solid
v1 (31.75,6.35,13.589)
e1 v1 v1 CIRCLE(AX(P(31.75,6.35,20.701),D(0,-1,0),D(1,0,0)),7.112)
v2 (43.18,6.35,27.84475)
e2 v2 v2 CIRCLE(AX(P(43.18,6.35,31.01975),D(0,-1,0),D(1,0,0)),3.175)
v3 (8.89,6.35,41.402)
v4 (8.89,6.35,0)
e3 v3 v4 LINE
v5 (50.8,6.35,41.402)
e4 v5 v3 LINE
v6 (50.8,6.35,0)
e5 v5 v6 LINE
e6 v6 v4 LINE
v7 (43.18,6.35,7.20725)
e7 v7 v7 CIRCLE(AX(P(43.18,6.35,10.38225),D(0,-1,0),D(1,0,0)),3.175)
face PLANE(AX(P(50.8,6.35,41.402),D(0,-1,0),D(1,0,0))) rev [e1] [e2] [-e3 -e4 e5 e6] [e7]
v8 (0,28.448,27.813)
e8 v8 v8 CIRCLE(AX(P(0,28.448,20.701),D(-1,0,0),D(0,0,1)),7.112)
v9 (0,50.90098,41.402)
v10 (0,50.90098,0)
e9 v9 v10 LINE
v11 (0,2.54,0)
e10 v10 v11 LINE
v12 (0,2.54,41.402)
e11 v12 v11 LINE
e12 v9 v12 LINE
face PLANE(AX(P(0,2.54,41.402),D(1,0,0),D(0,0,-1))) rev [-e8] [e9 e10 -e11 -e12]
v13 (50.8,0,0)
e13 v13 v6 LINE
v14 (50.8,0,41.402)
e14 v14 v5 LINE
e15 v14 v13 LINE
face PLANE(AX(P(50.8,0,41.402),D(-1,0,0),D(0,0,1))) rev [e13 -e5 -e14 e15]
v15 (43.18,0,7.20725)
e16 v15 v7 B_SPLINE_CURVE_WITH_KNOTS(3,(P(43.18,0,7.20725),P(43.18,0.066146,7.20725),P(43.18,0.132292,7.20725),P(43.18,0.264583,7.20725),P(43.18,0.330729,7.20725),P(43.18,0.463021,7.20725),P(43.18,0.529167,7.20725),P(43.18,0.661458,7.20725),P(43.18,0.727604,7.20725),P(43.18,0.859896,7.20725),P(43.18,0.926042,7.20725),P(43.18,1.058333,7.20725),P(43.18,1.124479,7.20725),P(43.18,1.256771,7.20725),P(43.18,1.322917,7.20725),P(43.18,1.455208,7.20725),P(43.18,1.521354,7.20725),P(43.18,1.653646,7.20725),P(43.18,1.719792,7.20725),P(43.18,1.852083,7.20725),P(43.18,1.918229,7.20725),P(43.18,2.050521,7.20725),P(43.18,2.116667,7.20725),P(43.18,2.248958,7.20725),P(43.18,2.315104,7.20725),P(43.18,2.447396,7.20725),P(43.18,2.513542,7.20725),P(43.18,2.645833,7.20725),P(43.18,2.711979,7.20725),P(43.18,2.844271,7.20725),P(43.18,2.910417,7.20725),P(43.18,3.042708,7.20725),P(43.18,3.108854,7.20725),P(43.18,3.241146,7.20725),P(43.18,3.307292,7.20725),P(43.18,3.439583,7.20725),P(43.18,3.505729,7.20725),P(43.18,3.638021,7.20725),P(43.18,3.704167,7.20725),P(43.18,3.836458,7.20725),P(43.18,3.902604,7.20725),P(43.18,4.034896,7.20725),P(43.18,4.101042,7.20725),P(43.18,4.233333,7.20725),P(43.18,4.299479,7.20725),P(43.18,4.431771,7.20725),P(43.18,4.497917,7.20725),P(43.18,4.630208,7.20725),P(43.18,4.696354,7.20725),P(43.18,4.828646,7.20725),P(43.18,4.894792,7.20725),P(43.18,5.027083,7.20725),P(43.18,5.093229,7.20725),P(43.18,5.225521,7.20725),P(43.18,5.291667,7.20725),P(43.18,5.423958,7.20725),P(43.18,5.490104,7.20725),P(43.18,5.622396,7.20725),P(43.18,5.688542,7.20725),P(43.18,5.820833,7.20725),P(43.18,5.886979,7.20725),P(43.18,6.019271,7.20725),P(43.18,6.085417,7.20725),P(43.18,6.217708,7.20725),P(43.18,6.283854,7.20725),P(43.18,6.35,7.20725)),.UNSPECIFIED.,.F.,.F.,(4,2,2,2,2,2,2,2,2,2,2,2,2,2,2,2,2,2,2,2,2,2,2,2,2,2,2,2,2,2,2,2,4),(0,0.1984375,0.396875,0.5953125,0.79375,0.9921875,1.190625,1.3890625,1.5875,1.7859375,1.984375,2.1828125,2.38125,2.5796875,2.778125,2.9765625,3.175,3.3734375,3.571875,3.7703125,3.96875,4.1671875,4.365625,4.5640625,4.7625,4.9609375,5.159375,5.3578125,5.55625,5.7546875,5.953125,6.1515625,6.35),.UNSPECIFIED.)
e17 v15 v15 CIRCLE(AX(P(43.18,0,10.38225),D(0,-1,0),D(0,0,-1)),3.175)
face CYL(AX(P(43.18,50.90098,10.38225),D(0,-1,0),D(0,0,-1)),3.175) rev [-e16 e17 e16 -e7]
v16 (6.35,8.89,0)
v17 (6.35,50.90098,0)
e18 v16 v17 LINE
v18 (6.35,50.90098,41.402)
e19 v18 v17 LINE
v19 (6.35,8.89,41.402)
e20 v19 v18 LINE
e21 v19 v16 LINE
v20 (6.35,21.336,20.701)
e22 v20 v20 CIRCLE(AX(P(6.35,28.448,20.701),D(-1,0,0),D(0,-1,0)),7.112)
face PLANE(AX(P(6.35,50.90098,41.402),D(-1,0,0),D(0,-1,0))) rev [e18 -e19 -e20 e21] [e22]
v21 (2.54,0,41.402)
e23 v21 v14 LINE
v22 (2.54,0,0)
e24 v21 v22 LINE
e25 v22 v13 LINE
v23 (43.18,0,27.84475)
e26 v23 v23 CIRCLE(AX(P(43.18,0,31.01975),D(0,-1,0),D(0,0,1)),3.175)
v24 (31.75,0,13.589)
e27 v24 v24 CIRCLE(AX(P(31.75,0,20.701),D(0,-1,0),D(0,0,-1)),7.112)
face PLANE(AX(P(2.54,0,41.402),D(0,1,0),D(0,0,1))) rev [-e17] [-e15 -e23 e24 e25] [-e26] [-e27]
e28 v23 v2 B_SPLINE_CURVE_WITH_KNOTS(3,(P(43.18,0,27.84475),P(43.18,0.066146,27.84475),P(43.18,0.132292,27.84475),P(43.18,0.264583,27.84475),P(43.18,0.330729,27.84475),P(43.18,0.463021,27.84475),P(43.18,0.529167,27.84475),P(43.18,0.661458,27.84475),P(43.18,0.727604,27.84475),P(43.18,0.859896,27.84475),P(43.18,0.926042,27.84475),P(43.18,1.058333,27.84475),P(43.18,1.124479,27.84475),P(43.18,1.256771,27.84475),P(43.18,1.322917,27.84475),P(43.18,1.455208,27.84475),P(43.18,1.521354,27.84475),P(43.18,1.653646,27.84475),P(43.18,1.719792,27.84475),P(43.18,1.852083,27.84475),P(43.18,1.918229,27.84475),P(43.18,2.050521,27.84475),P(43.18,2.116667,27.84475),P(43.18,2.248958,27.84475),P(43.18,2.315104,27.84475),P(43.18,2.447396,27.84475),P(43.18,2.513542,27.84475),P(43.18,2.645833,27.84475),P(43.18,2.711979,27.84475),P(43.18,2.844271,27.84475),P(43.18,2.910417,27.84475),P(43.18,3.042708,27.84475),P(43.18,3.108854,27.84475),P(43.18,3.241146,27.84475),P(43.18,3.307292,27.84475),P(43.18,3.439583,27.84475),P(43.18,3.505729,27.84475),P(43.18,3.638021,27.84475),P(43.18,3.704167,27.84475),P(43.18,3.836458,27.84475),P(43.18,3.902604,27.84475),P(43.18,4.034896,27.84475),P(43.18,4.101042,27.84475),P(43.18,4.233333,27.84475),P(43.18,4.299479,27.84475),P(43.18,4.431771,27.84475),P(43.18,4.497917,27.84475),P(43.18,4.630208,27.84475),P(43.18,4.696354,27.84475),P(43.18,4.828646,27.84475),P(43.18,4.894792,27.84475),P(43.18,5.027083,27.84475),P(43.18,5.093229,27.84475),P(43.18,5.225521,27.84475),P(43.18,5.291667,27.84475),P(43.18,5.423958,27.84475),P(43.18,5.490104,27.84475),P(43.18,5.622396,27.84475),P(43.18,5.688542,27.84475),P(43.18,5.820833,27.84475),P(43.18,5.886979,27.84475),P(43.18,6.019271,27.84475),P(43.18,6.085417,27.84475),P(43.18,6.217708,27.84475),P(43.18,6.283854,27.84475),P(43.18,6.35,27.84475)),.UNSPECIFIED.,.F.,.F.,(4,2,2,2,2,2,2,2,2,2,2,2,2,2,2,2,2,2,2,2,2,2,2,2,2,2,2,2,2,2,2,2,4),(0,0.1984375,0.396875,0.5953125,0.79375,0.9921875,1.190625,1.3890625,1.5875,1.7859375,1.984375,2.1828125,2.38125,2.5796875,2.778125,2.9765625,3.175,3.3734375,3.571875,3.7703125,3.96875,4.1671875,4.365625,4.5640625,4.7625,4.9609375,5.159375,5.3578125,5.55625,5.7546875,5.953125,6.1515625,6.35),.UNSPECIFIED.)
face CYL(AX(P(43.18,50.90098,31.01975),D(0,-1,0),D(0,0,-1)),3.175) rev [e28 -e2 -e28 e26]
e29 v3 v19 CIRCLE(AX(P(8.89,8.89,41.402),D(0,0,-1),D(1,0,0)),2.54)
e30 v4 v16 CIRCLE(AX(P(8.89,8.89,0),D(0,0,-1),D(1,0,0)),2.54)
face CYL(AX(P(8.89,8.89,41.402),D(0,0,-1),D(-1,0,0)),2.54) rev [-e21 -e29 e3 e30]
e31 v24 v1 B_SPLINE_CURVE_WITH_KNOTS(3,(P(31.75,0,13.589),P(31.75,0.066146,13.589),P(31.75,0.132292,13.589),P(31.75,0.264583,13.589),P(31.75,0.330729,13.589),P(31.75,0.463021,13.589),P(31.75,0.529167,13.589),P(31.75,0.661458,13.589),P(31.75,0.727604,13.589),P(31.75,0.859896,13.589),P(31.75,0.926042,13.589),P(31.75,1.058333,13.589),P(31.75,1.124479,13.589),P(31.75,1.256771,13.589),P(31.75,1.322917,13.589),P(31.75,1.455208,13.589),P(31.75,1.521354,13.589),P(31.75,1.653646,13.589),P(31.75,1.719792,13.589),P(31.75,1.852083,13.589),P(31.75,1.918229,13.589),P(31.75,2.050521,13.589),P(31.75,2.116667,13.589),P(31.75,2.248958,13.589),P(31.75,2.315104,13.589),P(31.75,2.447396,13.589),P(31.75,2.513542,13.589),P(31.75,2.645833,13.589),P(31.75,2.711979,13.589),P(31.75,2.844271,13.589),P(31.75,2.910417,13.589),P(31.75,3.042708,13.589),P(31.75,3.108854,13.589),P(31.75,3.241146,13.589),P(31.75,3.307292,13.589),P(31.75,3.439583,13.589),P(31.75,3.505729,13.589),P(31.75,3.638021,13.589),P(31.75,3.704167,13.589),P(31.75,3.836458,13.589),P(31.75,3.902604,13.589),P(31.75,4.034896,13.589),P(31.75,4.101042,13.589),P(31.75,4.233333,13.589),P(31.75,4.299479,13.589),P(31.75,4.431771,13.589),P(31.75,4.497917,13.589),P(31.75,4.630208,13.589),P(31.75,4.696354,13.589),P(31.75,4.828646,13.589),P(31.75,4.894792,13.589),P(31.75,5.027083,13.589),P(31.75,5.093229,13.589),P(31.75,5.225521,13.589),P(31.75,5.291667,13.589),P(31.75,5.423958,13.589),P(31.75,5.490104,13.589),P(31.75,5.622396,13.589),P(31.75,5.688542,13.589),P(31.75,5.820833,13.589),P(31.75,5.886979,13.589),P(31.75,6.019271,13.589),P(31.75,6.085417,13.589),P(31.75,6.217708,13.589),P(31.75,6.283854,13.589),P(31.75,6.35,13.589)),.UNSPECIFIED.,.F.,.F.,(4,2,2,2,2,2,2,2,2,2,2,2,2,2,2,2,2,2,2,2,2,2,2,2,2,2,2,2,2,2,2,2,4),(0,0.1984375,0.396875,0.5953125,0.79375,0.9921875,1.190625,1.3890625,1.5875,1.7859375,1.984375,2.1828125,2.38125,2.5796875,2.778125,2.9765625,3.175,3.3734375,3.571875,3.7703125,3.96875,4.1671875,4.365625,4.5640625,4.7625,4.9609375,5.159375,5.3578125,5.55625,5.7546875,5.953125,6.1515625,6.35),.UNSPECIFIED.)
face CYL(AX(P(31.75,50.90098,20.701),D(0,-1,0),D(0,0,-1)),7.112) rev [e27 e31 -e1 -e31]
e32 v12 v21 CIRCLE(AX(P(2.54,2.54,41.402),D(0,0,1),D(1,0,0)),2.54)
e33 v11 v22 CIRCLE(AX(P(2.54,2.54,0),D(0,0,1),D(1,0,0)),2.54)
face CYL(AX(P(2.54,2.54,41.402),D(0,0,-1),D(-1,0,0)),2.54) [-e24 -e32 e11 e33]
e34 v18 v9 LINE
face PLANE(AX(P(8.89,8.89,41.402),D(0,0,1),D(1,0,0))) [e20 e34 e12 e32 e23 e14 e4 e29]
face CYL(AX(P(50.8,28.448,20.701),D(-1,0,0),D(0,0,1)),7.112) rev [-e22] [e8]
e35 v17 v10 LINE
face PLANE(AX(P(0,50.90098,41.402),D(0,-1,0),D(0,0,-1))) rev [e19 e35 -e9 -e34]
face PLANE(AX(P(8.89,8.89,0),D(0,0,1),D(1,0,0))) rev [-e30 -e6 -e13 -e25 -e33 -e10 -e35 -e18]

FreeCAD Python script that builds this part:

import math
import FreeCAD as App
import Part
import Sketcher
Q = App.Units.Quantity

doc = App.newDocument("Part")
body = doc.addObject("PartDesign::Body", "Body")

# Sketch on XY plane
sketch1 = doc.addObject("Sketcher::SketchObject", "Sketch")
body.addObject(sketch1)
sketch1.AttachmentSupport = (doc.XY_Plane, [""])
sketch1.MapMode = "FlatFace"
sketch1.addGeometry(Part.LineSegment(App.Vector(2.54, 0, 0), App.Vector(50.8, 0, 0)), False)
sketch1.addGeometry(Part.LineSegment(App.Vector(50.8, 0, 0), App.Vector(50.8, 6.35, 0)), False)
sketch1.addGeometry(Part.LineSegment(App.Vector(50.8, 6.35, 0), App.Vector(8.89, 6.35, 0)), False)
sketch1.addGeometry(Part.ArcOfCircle(Part.Circle(App.Vector(8.89, 8.89, 0), App.Vector(0, 0, 1), 2.54), math.radians(-180), math.radians(-90)), False)
sketch1.addGeometry(Part.LineSegment(App.Vector(6.35, 8.89, 0), App.Vector(6.35, 50.90098, 0)), False)
sketch1.addGeometry(Part.LineSegment(App.Vector(6.35, 50.90098, 0), App.Vector(0, 50.90098, 0)), False)
sketch1.addGeometry(Part.LineSegment(App.Vector(0, 50.90098, 0), App.Vector(0, 2.54, 0)), False)
sketch1.addGeometry(Part.ArcOfCircle(Part.Circle(App.Vector(2.54, 2.54, 0), App.Vector(0, 0, 1), 2.54), math.radians(-180), math.radians(-90)), False)
sketch1.addConstraint(Sketcher.Constraint("Coincident", 0, 2, 1, 1))
sketch1.addConstraint(Sketcher.Constraint("Coincident", 1, 2, 2, 1))
sketch1.addConstraint(Sketcher.Constraint("Tangent", 2, 2, 3, 2))
sketch1.addConstraint(Sketcher.Constraint("Tangent", 3, 1, 4, 1))
sketch1.addConstraint(Sketcher.Constraint("Coincident", 4, 2, 5, 1))
sketch1.addConstraint(Sketcher.Constraint("Coincident", 5, 2, 6, 1))
sketch1.addConstraint(Sketcher.Constraint("Tangent", 6, 2, 7, 1))
sketch1.addConstraint(Sketcher.Constraint("Tangent", 7, 2, 0, 1))
sketch1.addConstraint(Sketcher.Constraint("Horizontal", 0))
sketch1.addConstraint(Sketcher.Constraint("Vertical", 1))
sketch1.addConstraint(Sketcher.Constraint("Horizontal", 2))
sketch1.addConstraint(Sketcher.Constraint("Vertical", 4))
sketch1.addConstraint(Sketcher.Constraint("Horizontal", 5))
sketch1.addConstraint(Sketcher.Constraint("Vertical", 6))
sketch1.addConstraint(Sketcher.Constraint("Equal", 3, 7))
sketch1.addConstraint(Sketcher.Constraint("PointOnObject", 0, 2, -1))
sketch1.addConstraint(Sketcher.Constraint("PointOnObject", 5, 2, -2))
sketch1.addConstraint(Sketcher.Constraint("Equal", 5, 1))
sketch1.addConstraint(Sketcher.Constraint("Radius", 3, Q("0.1 in")))
sketch1.addConstraint(Sketcher.Constraint("DistanceX", 0, 1, 0, 2, Q("1.9 in")))
sketch1.addConstraint(Sketcher.Constraint("DistanceX", 2, 2, 2, 1, Q("1.65 in")))
sketch1.addConstraint(Sketcher.Constraint("DistanceY", 4, 1, 4, 2, Q("42.01098 mm")))
pad1 = doc.addObject("PartDesign::Pad", "Pad")
body.addObject(pad1)
pad1.Profile = sketch1
pad1.Length = Q("1.63 in")

# Sketch on YZ plane
sketch2 = doc.addObject("Sketcher::SketchObject", "Sketch001")
body.addObject(sketch2)
sketch2.AttachmentSupport = (doc.YZ_Plane, [""])
sketch2.MapMode = "FlatFace"
sketch2.addGeometry(Part.Circle(App.Vector(28.448, 20.701, 0), App.Vector(0, 0, 1), 7.112), False)
sketch2.addConstraint(Sketcher.Constraint("Diameter", 0, Q("0.56 in")))
sketch2.addConstraint(Sketcher.Constraint("DistanceX", -1, 1, 0, 3, Q("1.12 in")))
sketch2.addConstraint(Sketcher.Constraint("DistanceY", -1, 1, 0, 3, Q("0.815 in")))
pocket1 = doc.addObject("PartDesign::Pocket", "Pocket")
body.addObject(pocket1)
pocket1.Profile = sketch2
pocket1.Type = "ThroughAll"
pocket1.Reversed = True

# Sketch on XZ plane
sketch3 = doc.addObject("Sketcher::SketchObject", "Sketch002")
body.addObject(sketch3)
sketch3.AttachmentSupport = (doc.XZ_Plane, [""])
sketch3.MapMode = "FlatFace"
sketch3.addGeometry(Part.Circle(App.Vector(31.75, 20.701, 0), App.Vector(0, 0, 1), 7.112), False)
sketch3.addConstraint(Sketcher.Constraint("Diameter", 0, Q("0.56 in")))
sketch3.addConstraint(Sketcher.Constraint("DistanceX", -1, 1, 0, 3, Q("1.25 in")))
sketch3.addConstraint(Sketcher.Constraint("DistanceY", -1, 1, 0, 3, Q("0.815 in")))
pocket2 = doc.addObject("PartDesign::Pocket", "Pocket001")
body.addObject(pocket2)
pocket2.Profile = sketch3
pocket2.Type = "ThroughAll"

# Sketch on XZ plane
sketch4 = doc.addObject("Sketcher::SketchObject", "Sketch003")
body.addObject(sketch4)
sketch4.AttachmentSupport = (doc.XZ_Plane, [""])
sketch4.MapMode = "FlatFace"
sketch4.addGeometry(Part.Circle(App.Vector(43.18, 10.38225, 0), App.Vector(0, 0, 1), 3.175), False)
sketch4.addGeometry(Part.Circle(App.Vector(43.18, 31.01975, 0), App.Vector(0, 0, 1), 3.175), False)
sketch4.addConstraint(Sketcher.Constraint("Equal", 0, 1))
sketch4.addConstraint(Sketcher.Constraint("Vertical", 0, 3, 1, 3))
sketch4.addConstraint(Sketcher.Constraint("Diameter", 0, Q("0.25 in")))
sketch4.addConstraint(Sketcher.Constraint("DistanceX", -1, 1, 0, 3, Q("1.7 in")))
sketch4.addConstraint(Sketcher.Constraint("DistanceY", 0, 3, 1, 3, Q("0.8125 in")))
sketch4.addConstraint(Sketcher.Constraint("DistanceY", -1, 1, 0, 3, Q("10.38225 mm")))
pocket3 = doc.addObject("PartDesign::Pocket", "Pocket002")
body.addObject(pocket3)
pocket3.Profile = sketch4
pocket3.Type = "ThroughAll"

doc.recompute()
